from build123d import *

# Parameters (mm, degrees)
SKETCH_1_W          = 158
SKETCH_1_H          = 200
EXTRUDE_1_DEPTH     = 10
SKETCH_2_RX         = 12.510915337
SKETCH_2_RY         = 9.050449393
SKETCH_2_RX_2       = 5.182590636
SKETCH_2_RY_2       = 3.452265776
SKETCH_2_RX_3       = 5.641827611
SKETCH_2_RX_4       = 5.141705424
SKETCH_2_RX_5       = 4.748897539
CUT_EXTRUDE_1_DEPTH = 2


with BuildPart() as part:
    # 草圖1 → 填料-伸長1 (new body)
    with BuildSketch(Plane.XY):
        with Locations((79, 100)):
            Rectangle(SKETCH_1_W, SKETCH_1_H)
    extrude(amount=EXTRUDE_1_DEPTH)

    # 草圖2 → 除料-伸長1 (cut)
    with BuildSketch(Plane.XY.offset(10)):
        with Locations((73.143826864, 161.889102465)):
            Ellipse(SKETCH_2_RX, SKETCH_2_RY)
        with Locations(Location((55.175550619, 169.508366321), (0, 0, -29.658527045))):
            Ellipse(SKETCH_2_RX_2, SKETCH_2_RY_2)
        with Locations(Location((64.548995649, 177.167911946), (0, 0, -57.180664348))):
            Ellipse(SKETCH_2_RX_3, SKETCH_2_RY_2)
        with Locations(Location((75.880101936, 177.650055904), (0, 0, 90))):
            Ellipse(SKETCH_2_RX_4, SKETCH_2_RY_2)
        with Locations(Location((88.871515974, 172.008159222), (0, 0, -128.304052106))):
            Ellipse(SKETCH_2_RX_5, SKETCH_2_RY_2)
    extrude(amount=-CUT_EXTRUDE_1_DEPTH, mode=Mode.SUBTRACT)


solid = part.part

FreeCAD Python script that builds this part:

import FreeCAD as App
import Part
import Sketcher
Q = App.Units.Quantity

doc = App.newDocument("Part")
body = doc.addObject("PartDesign::Body", "Body")

sketch1 = body.newObject("Sketcher::SketchObject", "Sketch")
sketch1.AttachmentSupport = (doc.getObject("XY_Plane"), [""])
sketch1.MapMode = "FlatFace"
sketch1.addGeometry([
    Part.LineSegment(App.Vector(0, 200, 0), App.Vector(0, 0, 0)),
    Part.LineSegment(App.Vector(0, 0, 0), App.Vector(158, 0, 0)),
    Part.LineSegment(App.Vector(158, 0, 0), App.Vector(158, 200, 0)),
    Part.LineSegment(App.Vector(158, 200, 0), App.Vector(0, 200, 0)),
], False)
sketch1.addConstraint([
    Sketcher.Constraint("Coincident", 0, 2, 1, 1),
    Sketcher.Constraint("Coincident", 1, 2, 2, 1),
    Sketcher.Constraint("Coincident", 2, 2, 3, 1),
    Sketcher.Constraint("Coincident", 3, 2, 0, 1),
    Sketcher.Constraint("Vertical", 0),
    Sketcher.Constraint("Horizontal", 1),
    Sketcher.Constraint("Vertical", 2),
    Sketcher.Constraint("Horizontal", 3),
    Sketcher.Constraint("Coincident", 0, 2, -1, 1),
    Sketcher.Constraint("DistanceX", 1, 1, 1, 2, Q("158 mm")),
    Sketcher.Constraint("DistanceY", 0, 2, 0, 1, Q("200 mm")),
])
pad1 = body.newObject("PartDesign::Pad", "Pad")
pad1.Profile = sketch1
pad1.Length = 10

sketch2 = body.newObject("Sketcher::SketchObject", "Sketch001")
sketch2.AttachmentSupport = (doc.getObject("XY_Plane"), [""])
sketch2.MapMode = "FlatFace"
sketch2.AttachmentOffset = App.Placement(App.Vector(0, 0, 10), App.Rotation())
sketch2.addGeometry([
    Part.Ellipse(App.Vector(85.654742, 161.889102, 0), App.Vector(73.143827, 170.939552, 0), App.Vector(73.143827, 161.889102, 0)),
    Part.Ellipse(App.Vector(59.67917, 166.943866, 0), App.Vector(56.883835, 172.50835, 0), App.Vector(55.175551, 169.508366, 0)),
    Part.Ellipse(App.Vector(67.60682, 172.426612, 0), App.Vector(67.450224, 179.039012, 0), App.Vector(64.548996, 177.167912, 0)),
    Part.Ellipse(App.Vector(75.880102, 182.791761, 0), App.Vector(72.427836, 177.650056, 0), App.Vector(75.880102, 177.650056, 0)),
    Part.Ellipse(App.Vector(85.927985, 168.281545, 0), App.Vector(91.580621, 169.868326, 0), App.Vector(88.871516, 172.008159, 0)),
], False)
sketch2.addConstraint([
    Sketcher.Constraint("Block", 0),
    Sketcher.Constraint("Block", 1),
    Sketcher.Constraint("Block", 2),
    Sketcher.Constraint("Block", 3),
    Sketcher.Constraint("Block", 4),
])
pocket1 = body.newObject("PartDesign::Pocket", "Pocket")
pocket1.Profile = sketch2
pocket1.Length = 2

doc.recompute()
